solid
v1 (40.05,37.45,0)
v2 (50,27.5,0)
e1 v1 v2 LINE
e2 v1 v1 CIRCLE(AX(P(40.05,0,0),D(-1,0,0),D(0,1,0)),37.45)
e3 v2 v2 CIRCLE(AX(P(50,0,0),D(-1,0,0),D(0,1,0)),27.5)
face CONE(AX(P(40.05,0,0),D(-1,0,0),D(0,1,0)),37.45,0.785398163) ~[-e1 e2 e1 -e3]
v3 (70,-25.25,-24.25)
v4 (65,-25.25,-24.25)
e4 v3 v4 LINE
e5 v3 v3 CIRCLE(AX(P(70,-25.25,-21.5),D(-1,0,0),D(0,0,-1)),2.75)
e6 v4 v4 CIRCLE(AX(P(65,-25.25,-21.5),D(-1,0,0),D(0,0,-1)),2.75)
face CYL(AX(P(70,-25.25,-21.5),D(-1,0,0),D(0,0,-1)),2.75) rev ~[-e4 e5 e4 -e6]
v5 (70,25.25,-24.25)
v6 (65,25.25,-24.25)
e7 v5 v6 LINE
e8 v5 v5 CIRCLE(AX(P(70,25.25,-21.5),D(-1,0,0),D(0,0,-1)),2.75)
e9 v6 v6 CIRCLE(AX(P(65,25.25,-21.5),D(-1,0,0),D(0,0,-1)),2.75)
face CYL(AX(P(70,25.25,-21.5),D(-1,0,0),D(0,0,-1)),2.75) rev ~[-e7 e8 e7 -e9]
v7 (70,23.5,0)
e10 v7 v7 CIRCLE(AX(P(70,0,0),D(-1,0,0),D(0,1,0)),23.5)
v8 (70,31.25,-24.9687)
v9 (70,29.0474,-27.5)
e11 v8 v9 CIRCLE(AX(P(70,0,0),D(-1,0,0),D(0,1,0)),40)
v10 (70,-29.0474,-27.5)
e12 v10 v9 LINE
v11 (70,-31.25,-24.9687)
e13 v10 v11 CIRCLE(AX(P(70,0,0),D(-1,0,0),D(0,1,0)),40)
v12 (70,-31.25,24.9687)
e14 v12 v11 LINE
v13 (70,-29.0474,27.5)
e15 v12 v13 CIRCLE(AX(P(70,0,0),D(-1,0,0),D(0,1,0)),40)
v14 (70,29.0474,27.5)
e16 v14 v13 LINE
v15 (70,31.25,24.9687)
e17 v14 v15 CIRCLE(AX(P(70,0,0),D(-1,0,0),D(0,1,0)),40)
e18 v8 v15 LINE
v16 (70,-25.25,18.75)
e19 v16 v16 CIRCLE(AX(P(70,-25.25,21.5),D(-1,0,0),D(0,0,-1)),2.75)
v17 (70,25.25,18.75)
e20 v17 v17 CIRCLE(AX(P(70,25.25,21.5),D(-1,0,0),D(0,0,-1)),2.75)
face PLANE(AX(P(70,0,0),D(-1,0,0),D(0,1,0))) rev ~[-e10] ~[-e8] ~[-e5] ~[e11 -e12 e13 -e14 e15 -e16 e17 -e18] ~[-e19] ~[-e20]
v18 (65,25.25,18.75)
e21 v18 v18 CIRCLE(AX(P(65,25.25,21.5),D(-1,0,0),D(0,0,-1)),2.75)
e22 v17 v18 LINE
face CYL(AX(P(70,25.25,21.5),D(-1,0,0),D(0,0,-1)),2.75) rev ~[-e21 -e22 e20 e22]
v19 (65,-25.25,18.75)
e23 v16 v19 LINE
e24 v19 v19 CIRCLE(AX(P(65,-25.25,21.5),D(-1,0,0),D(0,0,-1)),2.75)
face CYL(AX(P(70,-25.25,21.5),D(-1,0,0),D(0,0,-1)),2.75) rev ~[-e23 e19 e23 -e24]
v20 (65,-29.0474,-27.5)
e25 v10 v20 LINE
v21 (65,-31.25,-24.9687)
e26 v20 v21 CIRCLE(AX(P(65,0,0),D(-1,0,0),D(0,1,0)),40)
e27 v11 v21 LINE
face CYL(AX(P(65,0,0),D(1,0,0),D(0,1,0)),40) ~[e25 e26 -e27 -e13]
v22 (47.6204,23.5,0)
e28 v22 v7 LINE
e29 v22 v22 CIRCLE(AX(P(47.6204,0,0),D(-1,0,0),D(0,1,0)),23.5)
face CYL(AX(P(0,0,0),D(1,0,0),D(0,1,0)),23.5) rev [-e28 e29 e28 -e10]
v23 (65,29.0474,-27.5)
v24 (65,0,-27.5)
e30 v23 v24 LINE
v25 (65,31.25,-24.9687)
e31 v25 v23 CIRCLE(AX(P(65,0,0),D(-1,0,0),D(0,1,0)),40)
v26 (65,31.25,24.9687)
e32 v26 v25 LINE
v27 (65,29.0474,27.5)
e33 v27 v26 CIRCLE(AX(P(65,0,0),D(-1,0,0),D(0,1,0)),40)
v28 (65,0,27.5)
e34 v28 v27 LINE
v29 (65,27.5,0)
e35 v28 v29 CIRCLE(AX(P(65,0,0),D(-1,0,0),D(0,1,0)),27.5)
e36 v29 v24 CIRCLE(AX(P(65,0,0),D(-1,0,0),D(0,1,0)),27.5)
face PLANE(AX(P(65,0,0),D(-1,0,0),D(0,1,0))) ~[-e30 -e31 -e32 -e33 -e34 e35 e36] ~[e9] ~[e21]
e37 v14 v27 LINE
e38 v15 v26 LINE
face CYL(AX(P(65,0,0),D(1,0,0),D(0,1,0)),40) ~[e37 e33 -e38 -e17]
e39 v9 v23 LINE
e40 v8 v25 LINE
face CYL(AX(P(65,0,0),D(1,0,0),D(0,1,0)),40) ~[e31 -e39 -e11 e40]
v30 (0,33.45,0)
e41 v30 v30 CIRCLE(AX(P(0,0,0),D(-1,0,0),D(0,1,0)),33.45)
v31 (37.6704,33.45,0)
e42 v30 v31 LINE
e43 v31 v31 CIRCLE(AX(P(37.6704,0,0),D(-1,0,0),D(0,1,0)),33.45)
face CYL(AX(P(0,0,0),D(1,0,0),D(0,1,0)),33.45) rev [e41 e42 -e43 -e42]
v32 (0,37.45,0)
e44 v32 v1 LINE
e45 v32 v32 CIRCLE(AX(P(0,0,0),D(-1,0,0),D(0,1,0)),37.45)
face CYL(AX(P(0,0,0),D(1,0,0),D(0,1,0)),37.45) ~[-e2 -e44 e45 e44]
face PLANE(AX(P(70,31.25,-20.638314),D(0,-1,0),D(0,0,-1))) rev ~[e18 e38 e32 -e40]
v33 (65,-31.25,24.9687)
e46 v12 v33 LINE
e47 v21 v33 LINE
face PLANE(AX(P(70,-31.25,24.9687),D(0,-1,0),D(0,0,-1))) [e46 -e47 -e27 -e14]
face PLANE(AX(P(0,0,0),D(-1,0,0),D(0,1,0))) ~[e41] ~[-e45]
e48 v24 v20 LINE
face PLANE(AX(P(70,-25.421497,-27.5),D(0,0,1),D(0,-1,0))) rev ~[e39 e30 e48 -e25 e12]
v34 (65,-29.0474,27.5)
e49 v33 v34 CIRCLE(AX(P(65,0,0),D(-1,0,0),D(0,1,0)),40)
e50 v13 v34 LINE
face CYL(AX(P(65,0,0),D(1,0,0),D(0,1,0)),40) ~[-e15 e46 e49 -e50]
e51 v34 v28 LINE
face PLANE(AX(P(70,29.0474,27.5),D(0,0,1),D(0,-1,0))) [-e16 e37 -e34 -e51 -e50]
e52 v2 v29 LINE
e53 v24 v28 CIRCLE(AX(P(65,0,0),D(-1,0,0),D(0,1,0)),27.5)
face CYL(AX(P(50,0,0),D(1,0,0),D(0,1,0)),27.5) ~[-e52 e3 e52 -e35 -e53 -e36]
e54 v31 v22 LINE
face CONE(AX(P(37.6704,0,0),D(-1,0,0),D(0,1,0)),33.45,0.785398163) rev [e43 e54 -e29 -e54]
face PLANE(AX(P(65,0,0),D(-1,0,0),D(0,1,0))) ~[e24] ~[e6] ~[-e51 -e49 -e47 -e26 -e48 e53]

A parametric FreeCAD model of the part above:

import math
import FreeCAD as App
import Part
import Sketcher
Q = App.Units.Quantity

doc = App.newDocument("Part")
params = doc.addObject("Spreadsheet::Sheet", "Params")
for row, (alias, value) in enumerate([
    ("sketch1_width", "5 mm"),
    ("sketch1_width2", "15 mm"),
    ("sketch1_height", "4 mm"),
    ("revolution_angle", "360 deg"),
    ("sketch2_radius", "40 mm"),
    ("pocket1_length", "5 mm"),
    ("sketch3_diameter", "5.5 mm"),
    ("hole_diameter", "5.5 mm"),
    ("hole_depth", "8 mm"),
], start=1):
    params.set(f"A{row}", alias)
    params.set(f"B{row}", "=" + value)
    params.setAlias(f"B{row}", alias)

body = doc.addObject("PartDesign::Body", "Body")

# Sketch on XY plane
sketch1 = body.newObject("Sketcher::SketchObject", "Sketch")
sketch1.AttachmentSupport = (doc.getObject("XY_Plane"), [""])
sketch1.MapMode = "FlatFace"
sketch1.addGeometry([
    Part.LineSegment(App.Vector(50, 27.5, 0), App.Vector(40.05, 37.45, 0)),  # 0
    Part.LineSegment(App.Vector(40.05, 37.45, 0), App.Vector(0, 37.45, 0)),  # 1
    Part.LineSegment(App.Vector(0, 37.45, 0), App.Vector(0, 33.45, 0)),  # 2
    Part.LineSegment(App.Vector(0, 33.45, 0), App.Vector(37.6704, 33.45, 0)),  # 3
    Part.LineSegment(App.Vector(37.6704, 33.45, 0), App.Vector(47.6204, 23.5, 0)),  # 4
    Part.LineSegment(App.Vector(47.6204, 23.5, 0), App.Vector(70, 23.5, 0)),  # 5
    Part.LineSegment(App.Vector(70, 23.5, 0), App.Vector(70, 40, 0)),  # 6
    Part.LineSegment(App.Vector(70, 40, 0), App.Vector(65, 40, 0)),  # 7
    Part.LineSegment(App.Vector(65, 40, 0), App.Vector(65, 27.5, 0)),  # 8
    Part.LineSegment(App.Vector(65, 27.5, 0), App.Vector(50, 27.5, 0)),  # 9
], False)
sketch1.addConstraint([
    Sketcher.Constraint("Coincident", 0, 2, 1, 1),
    Sketcher.Constraint("Coincident", 1, 2, 2, 1),
    Sketcher.Constraint("Coincident", 2, 2, 3, 1),
    Sketcher.Constraint("Coincident", 3, 2, 4, 1),
    Sketcher.Constraint("Coincident", 4, 2, 5, 1),
    Sketcher.Constraint("Coincident", 5, 2, 6, 1),
    Sketcher.Constraint("Coincident", 6, 2, 7, 1),
    Sketcher.Constraint("Coincident", 7, 2, 8, 1),
    Sketcher.Constraint("Coincident", 8, 2, 9, 1),
    Sketcher.Constraint("Coincident", 9, 2, 0, 1),
    Sketcher.Constraint("Horizontal", 1),
    Sketcher.Constraint("Vertical", 2),
    Sketcher.Constraint("Horizontal", 3),
    Sketcher.Constraint("Horizontal", 5),
    Sketcher.Constraint("Vertical", 6),
    Sketcher.Constraint("Horizontal", 7),
    Sketcher.Constraint("Vertical", 8),
    Sketcher.Constraint("Horizontal", 9),
    Sketcher.Constraint("PointOnObject", 1, 2, -2),
    Sketcher.Constraint("Parallel", 0, 4),
    Sketcher.Constraint("Equal", 0, 4),
    Sketcher.Constraint("DistanceX", 7, 2, 7, 1, 5.0),
    Sketcher.Constraint("DistanceX", 9, 2, 9, 1, 15.0),
    Sketcher.Constraint("DistanceY", 2, 2, 2, 1, 4.0),
    Sketcher.Constraint("Angle", 0, Q("135 deg")),
    Sketcher.Constraint("DistanceX", -1, 1, 5, 2, 70.0),
    Sketcher.Constraint("DistanceY", -1, 1, 6, 2, 40.0),
    Sketcher.Constraint("DistanceY", -1, 1, 4, 2, 23.5),
    Sketcher.Constraint("DistanceY", -1, 1, 0, 2, 37.45),
    Sketcher.Constraint("DistanceX", 3, 1, 3, 2, 37.6704),
])
sketch1.setExpression("Constraints[21]", "Params.sketch1_width")
sketch1.setExpression("Constraints[22]", "Params.sketch1_width2")
sketch1.setExpression("Constraints[23]", "Params.sketch1_height")
revolution = body.newObject("PartDesign::Revolution", "Revolution")
revolution.Profile = sketch1
revolution.ReferenceAxis = (sketch1, ["H_Axis"])
revolution.setExpression("Angle", "Params.revolution_angle")

# Sketch on YZ plane
sketch2 = body.newObject("Sketcher::SketchObject", "Sketch001")
sketch2.AttachmentSupport = (doc.getObject("YZ_Plane"), [""])
sketch2.MapMode = "FlatFace"
sketch2.AttachmentOffset = App.Placement(App.Vector(0, 0, 70), App.Rotation())
sketch2.addGeometry([
    Part.ArcOfCircle(Part.Circle(App.Vector(0, 0, 0), App.Vector(0, 0, 1), 40), math.radians(-136.567488), math.radians(-43.432512)),  # 0
    Part.LineSegment(App.Vector(-29.0474, -27.5, 0), App.Vector(29.0474, -27.5, 0)),  # 1
    Part.ArcOfCircle(Part.Circle(App.Vector(0, 0, 0), App.Vector(0, 0, 1), 40), math.radians(-38.624799), math.radians(38.624799)),  # 2
    Part.LineSegment(App.Vector(31.25, -24.9687, 0), App.Vector(31.25, 24.9687, 0)),  # 3
    Part.ArcOfCircle(Part.Circle(App.Vector(0, 0, 0), App.Vector(0, 0, 1), 40), math.radians(141.375201), math.radians(218.624799)),  # 4
    Part.LineSegment(App.Vector(-31.25, 24.9687, 0), App.Vector(-31.25, -24.9687, 0)),  # 5
    Part.ArcOfCircle(Part.Circle(App.Vector(0, 0, 0), App.Vector(0, 0, 1), 40), math.radians(43.432512), math.radians(136.567488)),  # 6
    Part.LineSegment(App.Vector(29.0474, 27.5, 0), App.Vector(-29.0474, 27.5, 0)),  # 7
], False)
sketch2.addConstraint([
    Sketcher.Constraint("Coincident", 0, 1, 1, 1),
    Sketcher.Constraint("Coincident", 1, 2, 0, 2),
    Sketcher.Constraint("Coincident", 2, 1, 3, 1),
    Sketcher.Constraint("Coincident", 3, 2, 2, 2),
    Sketcher.Constraint("Coincident", 4, 1, 5, 1),
    Sketcher.Constraint("Coincident", 5, 2, 4, 2),
    Sketcher.Constraint("Coincident", 6, 1, 7, 1),
    Sketcher.Constraint("Coincident", 7, 2, 6, 2),
    Sketcher.Constraint("Horizontal", 1),
    Sketcher.Constraint("Vertical", 3),
    Sketcher.Constraint("Vertical", 5),
    Sketcher.Constraint("Horizontal", 7),
    Sketcher.Constraint("Coincident", 0, 3, -1, 1),
    Sketcher.Constraint("Coincident", 2, 3, -1, 1),
    Sketcher.Constraint("Coincident", 4, 3, -1, 1),
    Sketcher.Constraint("Coincident", 6, 3, -1, 1),
    Sketcher.Constraint("Equal", 0, 2),
    Sketcher.Constraint("Equal", 2, 4),
    Sketcher.Constraint("Equal", 4, 6),
    Sketcher.Constraint("Horizontal", 3, 2, 4, 1),
    Sketcher.Constraint("Vertical", 1, 2, 6, 1),
    Sketcher.Constraint("Radius", 0, 40.0),
    Sketcher.Constraint("DistanceY", 0, 1, -1, 1, 27.5),
    Sketcher.Constraint("DistanceX", -1, 1, 2, 1, 31.25),
])
sketch2.setExpression("Constraints[21]", "Params.sketch2_radius")
pocket1 = body.newObject("PartDesign::Pocket", "Pocket")
pocket1.Profile = sketch2
pocket1.setExpression("Length", "Params.pocket1_length")

# Sketch on YZ plane
sketch3 = body.newObject("Sketcher::SketchObject", "Sketch002")
sketch3.AttachmentSupport = (doc.getObject("YZ_Plane"), [""])
sketch3.MapMode = "FlatFace"
sketch3.AttachmentOffset = App.Placement(App.Vector(0, 0, 70), App.Rotation())
sketch3.addGeometry([
    Part.Circle(App.Vector(-25.25, 21.5, 0), App.Vector(0, 0, 1), 2.75),
    Part.Circle(App.Vector(25.25, 21.5, 0), App.Vector(0, 0, 1), 2.75),
    Part.Circle(App.Vector(25.25, -21.5, 0), App.Vector(0, 0, 1), 2.75),
    Part.Circle(App.Vector(-25.25, -21.5, 0), App.Vector(0, 0, 1), 2.75),
], False)
sketch3.addConstraint([
    Sketcher.Constraint("Equal", 0, 1),
    Sketcher.Constraint("Equal", 1, 2),
    Sketcher.Constraint("Equal", 2, 3),
    Sketcher.Constraint("Symmetric", 0, 3, 2, 3, -1, 1),
    Sketcher.Constraint("Symmetric", 1, 3, 3, 3, -1, 1),
    Sketcher.Constraint("Symmetric", 0, 3, 1, 3, -2),
    Sketcher.Constraint("Diameter", 0, 5.5),
    Sketcher.Constraint("DistanceY", 2, 3, 1, 3, 43.0),
    Sketcher.Constraint("DistanceX", 0, 3, 1, 3, 50.5),
])
sketch3.setExpression("Constraints[6]", "Params.sketch3_diameter")
doc.recompute()
hole = body.newObject("PartDesign::Hole", "Hole")
hole.Profile = sketch3
hole.ThreadType = "None"
hole.setExpression("Diameter", "Params.hole_diameter")
hole.DepthType = "Dimension"
hole.setExpression("Depth", "Params.hole_depth")
hole.DrillPoint = "Angled"
hole.DrillPointAngle = 118

doc.recompute()
